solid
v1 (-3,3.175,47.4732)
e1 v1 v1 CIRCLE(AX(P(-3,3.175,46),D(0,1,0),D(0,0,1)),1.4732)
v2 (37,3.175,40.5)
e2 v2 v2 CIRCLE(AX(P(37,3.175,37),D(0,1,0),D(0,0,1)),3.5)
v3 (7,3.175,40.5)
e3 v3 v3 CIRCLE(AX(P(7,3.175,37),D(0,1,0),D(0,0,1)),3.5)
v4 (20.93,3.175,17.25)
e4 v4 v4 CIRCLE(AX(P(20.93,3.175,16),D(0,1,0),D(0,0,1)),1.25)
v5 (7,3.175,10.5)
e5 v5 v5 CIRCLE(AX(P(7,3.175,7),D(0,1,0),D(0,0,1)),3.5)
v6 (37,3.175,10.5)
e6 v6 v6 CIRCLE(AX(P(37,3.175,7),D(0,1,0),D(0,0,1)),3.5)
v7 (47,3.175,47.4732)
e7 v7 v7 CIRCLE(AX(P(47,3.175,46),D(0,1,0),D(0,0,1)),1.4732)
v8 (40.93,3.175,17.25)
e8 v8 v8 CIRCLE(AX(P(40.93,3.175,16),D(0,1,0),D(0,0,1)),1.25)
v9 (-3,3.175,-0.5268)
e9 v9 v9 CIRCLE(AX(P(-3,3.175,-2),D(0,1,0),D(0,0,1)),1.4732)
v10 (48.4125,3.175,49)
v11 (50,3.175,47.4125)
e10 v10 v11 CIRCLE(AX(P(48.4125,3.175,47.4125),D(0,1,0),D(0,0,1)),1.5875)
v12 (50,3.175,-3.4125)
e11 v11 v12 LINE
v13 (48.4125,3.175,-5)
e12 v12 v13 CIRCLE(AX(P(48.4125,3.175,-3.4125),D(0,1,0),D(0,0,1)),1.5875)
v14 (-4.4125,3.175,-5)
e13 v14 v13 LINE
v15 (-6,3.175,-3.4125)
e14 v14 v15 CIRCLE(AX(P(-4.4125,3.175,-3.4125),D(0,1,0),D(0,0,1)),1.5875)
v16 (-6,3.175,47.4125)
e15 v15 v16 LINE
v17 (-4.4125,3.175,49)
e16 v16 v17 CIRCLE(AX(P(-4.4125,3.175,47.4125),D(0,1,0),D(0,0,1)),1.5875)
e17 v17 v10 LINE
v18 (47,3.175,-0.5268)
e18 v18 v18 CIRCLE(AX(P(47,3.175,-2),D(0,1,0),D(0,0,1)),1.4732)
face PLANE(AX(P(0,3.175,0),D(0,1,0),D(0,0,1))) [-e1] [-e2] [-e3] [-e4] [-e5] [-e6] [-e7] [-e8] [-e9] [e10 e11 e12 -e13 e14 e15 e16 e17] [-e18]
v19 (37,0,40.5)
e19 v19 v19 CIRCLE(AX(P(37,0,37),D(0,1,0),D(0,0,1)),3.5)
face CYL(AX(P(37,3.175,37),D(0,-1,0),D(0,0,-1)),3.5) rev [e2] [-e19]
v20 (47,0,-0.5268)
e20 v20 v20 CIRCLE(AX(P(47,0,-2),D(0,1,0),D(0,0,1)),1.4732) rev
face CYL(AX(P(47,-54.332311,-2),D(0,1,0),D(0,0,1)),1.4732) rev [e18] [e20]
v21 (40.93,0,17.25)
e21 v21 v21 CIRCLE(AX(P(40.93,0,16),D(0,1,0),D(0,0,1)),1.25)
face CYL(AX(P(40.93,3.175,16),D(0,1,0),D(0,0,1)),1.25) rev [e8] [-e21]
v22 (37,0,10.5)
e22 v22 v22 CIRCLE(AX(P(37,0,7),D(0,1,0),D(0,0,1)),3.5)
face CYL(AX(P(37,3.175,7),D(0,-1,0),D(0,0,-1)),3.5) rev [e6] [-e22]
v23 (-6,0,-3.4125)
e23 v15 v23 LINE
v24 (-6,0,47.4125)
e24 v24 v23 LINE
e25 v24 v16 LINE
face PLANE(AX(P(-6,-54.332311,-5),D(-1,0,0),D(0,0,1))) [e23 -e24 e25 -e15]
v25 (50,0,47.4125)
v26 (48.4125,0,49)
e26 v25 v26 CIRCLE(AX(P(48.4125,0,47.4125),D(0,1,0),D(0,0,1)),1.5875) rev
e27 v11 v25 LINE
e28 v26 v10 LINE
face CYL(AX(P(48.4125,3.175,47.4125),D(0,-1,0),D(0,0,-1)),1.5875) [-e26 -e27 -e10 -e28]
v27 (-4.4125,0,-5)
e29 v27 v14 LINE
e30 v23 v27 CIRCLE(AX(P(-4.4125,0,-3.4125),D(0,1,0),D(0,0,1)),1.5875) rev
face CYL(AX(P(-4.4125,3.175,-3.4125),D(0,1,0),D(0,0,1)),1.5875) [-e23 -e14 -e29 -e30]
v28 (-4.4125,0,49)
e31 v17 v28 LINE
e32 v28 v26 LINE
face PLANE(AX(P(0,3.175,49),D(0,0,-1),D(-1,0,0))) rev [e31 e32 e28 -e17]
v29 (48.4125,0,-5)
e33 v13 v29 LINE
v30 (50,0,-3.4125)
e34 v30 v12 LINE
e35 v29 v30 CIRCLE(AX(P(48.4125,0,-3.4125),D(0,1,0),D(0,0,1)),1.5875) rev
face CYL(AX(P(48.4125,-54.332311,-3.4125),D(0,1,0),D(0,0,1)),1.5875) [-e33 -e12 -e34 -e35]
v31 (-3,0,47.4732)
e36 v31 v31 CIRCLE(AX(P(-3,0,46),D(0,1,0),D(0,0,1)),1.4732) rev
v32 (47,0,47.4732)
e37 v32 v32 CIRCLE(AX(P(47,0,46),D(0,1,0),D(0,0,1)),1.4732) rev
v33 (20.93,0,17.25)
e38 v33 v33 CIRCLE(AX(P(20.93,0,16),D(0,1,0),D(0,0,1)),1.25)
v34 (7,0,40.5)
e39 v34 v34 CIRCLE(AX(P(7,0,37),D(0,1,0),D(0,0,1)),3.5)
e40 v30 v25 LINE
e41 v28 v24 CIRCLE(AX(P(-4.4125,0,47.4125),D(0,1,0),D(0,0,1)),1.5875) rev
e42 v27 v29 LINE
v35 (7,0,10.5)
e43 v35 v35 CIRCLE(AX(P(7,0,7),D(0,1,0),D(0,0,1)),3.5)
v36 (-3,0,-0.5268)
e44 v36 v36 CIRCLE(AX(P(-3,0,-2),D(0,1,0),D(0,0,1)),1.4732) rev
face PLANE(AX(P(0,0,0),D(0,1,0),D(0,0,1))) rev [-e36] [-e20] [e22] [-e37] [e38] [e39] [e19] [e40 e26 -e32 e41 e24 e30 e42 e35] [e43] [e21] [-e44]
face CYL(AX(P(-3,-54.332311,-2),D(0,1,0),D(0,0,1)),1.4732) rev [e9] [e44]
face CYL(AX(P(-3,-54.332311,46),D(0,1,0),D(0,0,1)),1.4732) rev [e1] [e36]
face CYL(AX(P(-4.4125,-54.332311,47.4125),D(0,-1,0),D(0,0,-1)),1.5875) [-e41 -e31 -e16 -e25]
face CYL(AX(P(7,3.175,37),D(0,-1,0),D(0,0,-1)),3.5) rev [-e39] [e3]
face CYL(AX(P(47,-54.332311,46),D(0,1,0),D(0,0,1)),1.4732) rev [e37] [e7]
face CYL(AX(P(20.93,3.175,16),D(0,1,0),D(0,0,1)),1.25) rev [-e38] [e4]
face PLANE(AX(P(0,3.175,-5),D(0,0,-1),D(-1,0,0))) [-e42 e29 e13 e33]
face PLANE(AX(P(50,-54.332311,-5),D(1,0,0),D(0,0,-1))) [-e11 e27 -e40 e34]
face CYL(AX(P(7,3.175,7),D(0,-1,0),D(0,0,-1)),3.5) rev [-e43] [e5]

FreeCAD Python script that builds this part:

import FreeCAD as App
import Part
import Sketcher

V = App.Vector
Q = App.Units.Quantity


def edges_at(feature, points):
    """Names of the edges that pass closest to the given points."""
    edges = feature.Shape.Edges
    near = lambda p: min(range(len(edges)), key=lambda i: edges[i].distToShape(Part.Vertex(*p))[0])
    return sorted({f"Edge{near(p) + 1}" for p in points})

doc = App.newDocument("Part")
body = doc.addObject("PartDesign::Body", "Body")

# Sketch on XZ plane
sketch1 = body.newObject("Sketcher::SketchObject", "Sketch")
sketch1.AttachmentSupport = (doc.getObject("XZ_Plane"), [""])
sketch1.MapMode = "FlatFace"
sketch1.addGeometry(Part.LineSegment(V(0, 49, 0), V(44, 49, 0)), False)
sketch1.addGeometry(Part.LineSegment(V(44, 49, 0), V(44, -5, 0)), False)
sketch1.addGeometry(Part.LineSegment(V(44, -5, 0), V(0, -5, 0)), False)
sketch1.addGeometry(Part.LineSegment(V(0, -5, 0), V(0, 49, 0)), False)
sketch1.addGeometry(Part.Circle(V(7, 37, 0), V(0, 0, 1), 3.5), False)
sketch1.addGeometry(Part.Circle(V(37, 37, 0), V(0, 0, 1), 3.5), False)
sketch1.addGeometry(Part.Circle(V(20.9, 16, 0), V(0, 0, 1), 0.5), False)
sketch1.addGeometry(Part.Circle(V(7, 7, 0), V(0, 0, 1), 3.5), False)
sketch1.addGeometry(Part.Circle(V(40.9, 16, 0), V(0, 0, 1), 0.5), False)
sketch1.addGeometry(Part.Circle(V(37, 7, 0), V(0, 0, 1), 3.5), False)
sketch1.addConstraint(Sketcher.Constraint("Coincident", 0, 2, 1, 1))
sketch1.addConstraint(Sketcher.Constraint("Coincident", 1, 2, 2, 1))
sketch1.addConstraint(Sketcher.Constraint("Coincident", 2, 2, 3, 1))
sketch1.addConstraint(Sketcher.Constraint("Coincident", 3, 2, 0, 1))
sketch1.addConstraint(Sketcher.Constraint("Horizontal", 0))
sketch1.addConstraint(Sketcher.Constraint("Vertical", 1))
sketch1.addConstraint(Sketcher.Constraint("Horizontal", 2))
sketch1.addConstraint(Sketcher.Constraint("Vertical", 3))
sketch1.addConstraint(Sketcher.Constraint("Equal", 4, 5))
sketch1.addConstraint(Sketcher.Constraint("Equal", 5, 7))
sketch1.addConstraint(Sketcher.Constraint("Equal", 6, 8))
sketch1.addConstraint(Sketcher.Constraint("Equal", 7, 9))
sketch1.addConstraint(Sketcher.Constraint("PointOnObject", 2, 2, -2))
sketch1.addConstraint(Sketcher.Constraint("Horizontal", 4, 3, 5, 3))
sketch1.addConstraint(Sketcher.Constraint("Horizontal", 6, 3, 8, 3))
sketch1.addConstraint(Sketcher.Constraint("Horizontal", 7, 3, 9, 3))
sketch1.addConstraint(Sketcher.Constraint("Vertical", 4, 3, 7, 3))
sketch1.addConstraint(Sketcher.Constraint("Vertical", 5, 3, 9, 3))
sketch1.addConstraint(Sketcher.Constraint("Diameter", 4, Q("7 mm")))
sketch1.addConstraint(Sketcher.Constraint("Diameter", 6, Q("1 mm")))
sketch1.addConstraint(Sketcher.Constraint("DistanceX", 0, 1, 0, 2, Q("44 mm")))
sketch1.addConstraint(Sketcher.Constraint("DistanceY", 1, 2, 1, 1, Q("54 mm")))
sketch1.addConstraint(Sketcher.Constraint("DistanceX", -1, 1, 4, 3, Q("7 mm")))
sketch1.addConstraint(Sketcher.Constraint("DistanceY", -1, 1, 4, 3, Q("37 mm")))
sketch1.addConstraint(Sketcher.Constraint("DistanceX", -1, 1, 5, 3, Q("37 mm")))
sketch1.addConstraint(Sketcher.Constraint("DistanceY", -1, 1, 6, 3, Q("16 mm")))
sketch1.addConstraint(Sketcher.Constraint("DistanceY", -1, 1, 7, 3, Q("7 mm")))
sketch1.addConstraint(Sketcher.Constraint("DistanceY", -1, 1, 0, 2, Q("49 mm")))
sketch1.addConstraint(Sketcher.Constraint("DistanceX", 6, 3, 8, 3, Q("20 mm")))
sketch1.addConstraint(Sketcher.Constraint("DistanceX", -1, 1, 6, 3, Q("20.93 mm")))
pad1 = body.newObject("PartDesign::Pad", "Pad")
pad1.Profile = sketch1
pad1.Length = 3.175
pad1.Reversed = True

# Sketch on XZ plane
sketch2 = body.newObject("Sketcher::SketchObject", "Sketch001")
sketch2.AttachmentSupport = (doc.getObject("XZ_Plane"), [""])
sketch2.MapMode = "FlatFace"
sketch2.AttachmentOffset = App.Placement(V(0, 0, -3.175), App.Rotation())
sketch2.addGeometry(Part.LineSegment(V(-6, -5, 0), V(-6, 49, 0)), False)
sketch2.addGeometry(Part.LineSegment(V(-6, 49, 0), V(0, 49, 0)), False)
sketch2.addGeometry(Part.LineSegment(V(0, 49, 0), V(0, -5, 0)), False)
sketch2.addGeometry(Part.LineSegment(V(0, -5, 0), V(-6, -5, 0)), False)
sketch2.addGeometry(Part.Circle(V(-3, 46, 0), V(0, 0, 1), 1.5), False)
sketch2.addGeometry(Part.Circle(V(-3, -2, 0), V(0, 0, 1), 1.5), False)
sketch2.addGeometry(Part.LineSegment(V(44, -5, 0), V(44, 49, 0)), False)
sketch2.addGeometry(Part.LineSegment(V(44, 49, 0), V(50, 49, 0)), False)
sketch2.addGeometry(Part.LineSegment(V(50, 49, 0), V(50, -5, 0)), False)
sketch2.addGeometry(Part.LineSegment(V(50, -5, 0), V(44, -5, 0)), False)
sketch2.addGeometry(Part.Circle(V(47, 46, 0), V(0, 0, 1), 1.5), False)
sketch2.addGeometry(Part.Circle(V(47, -2, 0), V(0, 0, 1), 1.5), False)
sketch2.addConstraint(Sketcher.Constraint("Coincident", 0, 2, 1, 1))
sketch2.addConstraint(Sketcher.Constraint("Coincident", 1, 2, 2, 1))
sketch2.addConstraint(Sketcher.Constraint("Coincident", 2, 2, 3, 1))
sketch2.addConstraint(Sketcher.Constraint("Coincident", 3, 2, 0, 1))
sketch2.addConstraint(Sketcher.Constraint("Coincident", 6, 2, 7, 1))
sketch2.addConstraint(Sketcher.Constraint("Coincident", 7, 2, 8, 1))
sketch2.addConstraint(Sketcher.Constraint("Coincident", 8, 2, 9, 1))
sketch2.addConstraint(Sketcher.Constraint("Coincident", 9, 2, 6, 1))
sketch2.addConstraint(Sketcher.Constraint("Vertical", 0))
sketch2.addConstraint(Sketcher.Constraint("Horizontal", 1))
sketch2.addConstraint(Sketcher.Constraint("Vertical", 2))
sketch2.addConstraint(Sketcher.Constraint("Horizontal", 3))
sketch2.addConstraint(Sketcher.Constraint("Vertical", 6))
sketch2.addConstraint(Sketcher.Constraint("Horizontal", 7))
sketch2.addConstraint(Sketcher.Constraint("Vertical", 8))
sketch2.addConstraint(Sketcher.Constraint("Horizontal", 9))
sketch2.addConstraint(Sketcher.Constraint("Equal", 4, 5))
sketch2.addConstraint(Sketcher.Constraint("Equal", 5, 10))
sketch2.addConstraint(Sketcher.Constraint("Equal", 10, 11))
sketch2.addConstraint(Sketcher.Constraint("PointOnObject", 1, 2, -2))
sketch2.addConstraint(Sketcher.Constraint("Horizontal", 4, 3, 10, 3))
sketch2.addConstraint(Sketcher.Constraint("Horizontal", 5, 3, 11, 3))
sketch2.addConstraint(Sketcher.Constraint("Horizontal", 1, 2, 6, 2))
sketch2.addConstraint(Sketcher.Constraint("Horizontal", 3, 2, 8, 2))
sketch2.addConstraint(Sketcher.Constraint("Vertical", 4, 3, 5, 3))
sketch2.addConstraint(Sketcher.Constraint("Vertical", 10, 3, 11, 3))
sketch2.addConstraint(Sketcher.Constraint("Equal", 3, 7))
sketch2.addConstraint(Sketcher.Constraint("DistanceX", 1, 1, 1, 2, Q("6 mm")))
sketch2.addConstraint(Sketcher.Constraint("DistanceY", 0, 1, 0, 2, Q("54 mm")))
sketch2.addConstraint(Sketcher.Constraint("DistanceX", 4, 3, -1, 1, Q("3 mm")))
sketch2.addConstraint(Sketcher.Constraint("DistanceY", -1, 1, 4, 3, Q("46 mm")))
sketch2.addConstraint(Sketcher.Constraint("DistanceY", 5, 3, -1, 1, Q("2 mm")))
sketch2.addConstraint(Sketcher.Constraint("DistanceX", -1, 1, 10, 3, Q("47 mm")))
sketch2.addConstraint(Sketcher.Constraint("DistanceY", -1, 1, 0, 2, Q("49 mm")))
sketch2.addConstraint(Sketcher.Constraint("DistanceX", -1, 1, 6, 2, Q("44 mm")))
sketch2.addConstraint(Sketcher.Constraint("Diameter", 4, Q("2.9464 mm")))
pad2 = body.newObject("PartDesign::Pad", "Pad001")
pad2.Profile = sketch2
pad2.Length = 3.175

# Sketch on XZ plane
sketch3 = body.newObject("Sketcher::SketchObject", "Sketch002")
sketch3.AttachmentSupport = (doc.getObject("XZ_Plane"), [""])
sketch3.MapMode = "FlatFace"
sketch3.AttachmentOffset = App.Placement(V(0, 0, -3.175), App.Rotation())
sketch3.addGeometry(Part.Circle(V(40.9, 16, 0), V(0, 0, 1), 1.2), False)
sketch3.addGeometry(Part.Circle(V(20.9, 16, 0), V(0, 0, 1), 1.2), False)
sketch3.addConstraint(Sketcher.Constraint("Equal", 0, 1))
sketch3.addConstraint(Sketcher.Constraint("Horizontal", 0, 3, 1, 3))
sketch3.addConstraint(Sketcher.Constraint("Diameter", 0, Q("2.5 mm")))
sketch3.addConstraint(Sketcher.Constraint("DistanceY", -1, 1, 0, 3, Q("16 mm")))
sketch3.addConstraint(Sketcher.Constraint("DistanceX", 1, 3, 0, 3, Q("20 mm")))
sketch3.addConstraint(Sketcher.Constraint("DistanceX", -1, 1, 0, 3, Q("40.93 mm")))
doc.recompute()
hole = body.newObject("PartDesign::Hole", "Hole")
hole.Profile = sketch3
hole.ThreadType = "None"
hole.Diameter = 2.5
hole.DepthType = "ThroughAll"
hole.Reversed = True
doc.recompute()

fillet = body.newObject("PartDesign::Fillet", "Fillet")
fillet.Base = (hole, edges_at(hole, [
    (-6, 1.587, -5),
    (-6, 1.587, 49),
    (50, 1.587, 49),
    (50, 1.587, -5),
]))
fillet.Radius = 1.5875

doc.recompute()
